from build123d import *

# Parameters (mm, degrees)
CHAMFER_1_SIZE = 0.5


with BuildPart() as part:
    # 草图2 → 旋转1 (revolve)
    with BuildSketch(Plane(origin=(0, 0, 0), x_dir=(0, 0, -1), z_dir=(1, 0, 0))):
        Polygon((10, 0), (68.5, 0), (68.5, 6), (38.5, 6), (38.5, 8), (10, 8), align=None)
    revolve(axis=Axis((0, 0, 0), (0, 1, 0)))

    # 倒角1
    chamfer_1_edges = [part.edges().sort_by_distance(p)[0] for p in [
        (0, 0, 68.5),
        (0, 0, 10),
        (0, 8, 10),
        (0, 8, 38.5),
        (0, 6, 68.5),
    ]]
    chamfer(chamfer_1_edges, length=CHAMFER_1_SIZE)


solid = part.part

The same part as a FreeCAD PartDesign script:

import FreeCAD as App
import Part
import Sketcher
from FreeCAD import Vector


def edges_at(feature, points):
    """Names of the edges that pass closest to the given points."""
    edges = feature.Shape.Edges
    near = lambda p: min(range(len(edges)), key=lambda i: edges[i].distToShape(Part.Vertex(*p))[0])
    return sorted({f"Edge{near(p) + 1}" for p in points})

doc = App.newDocument("Part")
body = doc.addObject("PartDesign::Body", "Body")

sketch1 = body.newObject("Sketcher::SketchObject", "Sketch")
sketch1.AttachmentSupport = (doc.getObject("YZ_Plane"), [""])
sketch1.MapMode = "FlatFace"
sketch1.addGeometry([
    Part.LineSegment(Vector(0, -10, 0), Vector(0, -68.5, 0)),
    Part.LineSegment(Vector(0, -68.5, 0), Vector(6, -68.5, 0)),
    Part.LineSegment(Vector(6, -68.5, 0), Vector(6, -38.5, 0)),
    Part.LineSegment(Vector(6, -38.5, 0), Vector(8, -38.5, 0)),
    Part.LineSegment(Vector(8, -38.5, 0), Vector(8, -10, 0)),
    Part.LineSegment(Vector(8, -10, 0), Vector(0, -10, 0)),
], False)
sketch1.addConstraint([
    Sketcher.Constraint("Coincident", 0, 2, 1, 1),
    Sketcher.Constraint("Coincident", 1, 2, 2, 1),
    Sketcher.Constraint("Coincident", 2, 2, 3, 1),
    Sketcher.Constraint("Coincident", 3, 2, 4, 1),
    Sketcher.Constraint("Coincident", 4, 2, 5, 1),
    Sketcher.Constraint("Coincident", 5, 2, 0, 1),
    Sketcher.Constraint("Vertical", 0),
    Sketcher.Constraint("Horizontal", 1),
    Sketcher.Constraint("Vertical", 2),
    Sketcher.Constraint("Horizontal", 3),
    Sketcher.Constraint("Vertical", 4),
    Sketcher.Constraint("Horizontal", 5),
    Sketcher.Constraint("PointOnObject", 0, 2, -2),
    Sketcher.Constraint("DistanceX", 1, 1, 1, 2, 6.0),
    Sketcher.Constraint("DistanceX", 3, 1, 3, 2, 2.0),
    Sketcher.Constraint("DistanceY", 2, 1, 2, 2, 30.0),
    Sketcher.Constraint("DistanceY", 0, 2, 0, 1, 58.5),
    Sketcher.Constraint("DistanceY", 4, 2, -1, 1, 10.0),
])
revolution = body.newObject("PartDesign::Revolution", "Revolution")
revolution.Profile = sketch1
revolution.ReferenceAxis = (sketch1, ["H_Axis"])
revolution.Angle = 360
doc.recompute()

chamfer = body.newObject("PartDesign::Chamfer", "Chamfer")
chamfer.Base = (revolution, edges_at(revolution, [
    (0, 0, 68.5),
    (0, 0, 10),
    (0, 8, 10),
    (0, 8, 38.5),
    (0, 6, 68.5),
]))
chamfer.Size = 0.5

doc.recompute()
